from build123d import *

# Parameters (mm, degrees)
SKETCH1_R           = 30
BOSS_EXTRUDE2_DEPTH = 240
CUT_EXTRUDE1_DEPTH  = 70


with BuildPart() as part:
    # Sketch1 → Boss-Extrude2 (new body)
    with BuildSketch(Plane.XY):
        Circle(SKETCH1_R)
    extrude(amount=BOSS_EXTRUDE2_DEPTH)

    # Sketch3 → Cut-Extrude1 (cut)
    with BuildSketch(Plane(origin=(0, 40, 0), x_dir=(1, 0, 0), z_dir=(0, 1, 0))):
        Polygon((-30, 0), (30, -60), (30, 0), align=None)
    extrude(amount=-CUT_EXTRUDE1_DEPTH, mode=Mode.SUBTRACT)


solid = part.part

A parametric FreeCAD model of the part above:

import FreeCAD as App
import Part
import Sketcher

doc = App.newDocument("Part")
params = doc.addObject("Spreadsheet::Sheet", "Params")
for row, (alias, value) in enumerate([
    ("sketch1_diameter", "60 mm"),
    ("pad1_length", "240 mm"),
    ("sketch2_width", "60 mm"),
    ("pocket1_length", "70 mm"),
], start=1):
    params.set(f"A{row}", alias)
    params.set(f"B{row}", "=" + value)
    params.setAlias(f"B{row}", alias)

body = doc.addObject("PartDesign::Body", "Body")

# Sketch on XY plane
sketch1 = doc.addObject("Sketcher::SketchObject", "Sketch")
body.addObject(sketch1)
sketch1.AttachmentSupport = (doc.XY_Plane, [""])
sketch1.MapMode = "FlatFace"
sketch1.addGeometry(Part.Circle(App.Vector(0, 0, 0), App.Vector(0, 0, 1), 30), False)
sketch1.addConstraint(Sketcher.Constraint("Coincident", 0, 3, -1, 1))
sketch1.addConstraint(Sketcher.Constraint("Diameter", 0, 60.0))
sketch1.setExpression("Constraints[1]", "Params.sketch1_diameter")
pad1 = doc.addObject("PartDesign::Pad", "Pad")
body.addObject(pad1)
pad1.Profile = sketch1
pad1.setExpression("Length", "Params.pad1_length")

# Sketch on XZ plane
sketch2 = doc.addObject("Sketcher::SketchObject", "Sketch001")
body.addObject(sketch2)
sketch2.AttachmentSupport = (doc.XZ_Plane, [""])
sketch2.MapMode = "FlatFace"
sketch2.AttachmentOffset = App.Placement(App.Vector(0, 0, -40), App.Rotation())
sketch2.addGeometry(Part.LineSegment(App.Vector(-30, 0, 0), App.Vector(30, 60, 0)), False)
sketch2.addGeometry(Part.LineSegment(App.Vector(30, 60, 0), App.Vector(30, 0, 0)), False)
sketch2.addGeometry(Part.LineSegment(App.Vector(30, 0, 0), App.Vector(-30, 0, 0)), False)
sketch2.addConstraint(Sketcher.Constraint("Coincident", 0, 2, 1, 1))
sketch2.addConstraint(Sketcher.Constraint("Coincident", 1, 2, 2, 1))
sketch2.addConstraint(Sketcher.Constraint("Coincident", 2, 2, 0, 1))
sketch2.addConstraint(Sketcher.Constraint("Vertical", 1))
sketch2.addConstraint(Sketcher.Constraint("Horizontal", 2))
sketch2.addConstraint(Sketcher.Constraint("Symmetric", 1, 2, 2, 2, -1, 1))
sketch2.addConstraint(Sketcher.Constraint("Equal", 2, 1))
sketch2.addConstraint(Sketcher.Constraint("DistanceX", 2, 2, 2, 1, 60.0))
sketch2.setExpression("Constraints[7]", "Params.sketch2_width")
pocket1 = doc.addObject("PartDesign::Pocket", "Pocket")
body.addObject(pocket1)
pocket1.Profile = sketch2
pocket1.setExpression("Length", "Params.pocket1_length")
pocket1.Reversed = True

doc.recompute()
